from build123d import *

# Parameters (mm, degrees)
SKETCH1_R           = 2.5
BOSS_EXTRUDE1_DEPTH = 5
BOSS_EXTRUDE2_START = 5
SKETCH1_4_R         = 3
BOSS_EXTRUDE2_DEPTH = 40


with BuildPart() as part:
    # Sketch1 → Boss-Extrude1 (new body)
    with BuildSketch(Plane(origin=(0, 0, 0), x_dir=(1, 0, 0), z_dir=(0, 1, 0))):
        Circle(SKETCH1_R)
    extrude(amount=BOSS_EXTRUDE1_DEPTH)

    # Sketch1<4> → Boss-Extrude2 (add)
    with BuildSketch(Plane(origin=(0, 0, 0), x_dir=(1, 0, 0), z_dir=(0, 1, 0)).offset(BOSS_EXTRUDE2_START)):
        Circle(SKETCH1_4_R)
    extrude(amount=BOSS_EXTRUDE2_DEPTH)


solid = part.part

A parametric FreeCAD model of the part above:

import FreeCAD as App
import Part
import Sketcher
Q = App.Units.Quantity

doc = App.newDocument("Part")
body = doc.addObject("PartDesign::Body", "Body")

# Sketch on XZ plane
sketch1 = doc.addObject("Sketcher::SketchObject", "Sketch")
body.addObject(sketch1)
sketch1.AttachmentSupport = (doc.XZ_Plane, [""])
sketch1.MapMode = "FlatFace"
sketch1.addGeometry(Part.Circle(App.Vector(0, 0, 0), App.Vector(0, 0, 1), 2.5), False)
sketch1.addConstraint([
    Sketcher.Constraint("Coincident", 0, 3, -1, 1),
    Sketcher.Constraint("Diameter", 0, Q("5 mm")),
])
pad1 = doc.addObject("PartDesign::Pad", "Pad")
body.addObject(pad1)
pad1.Profile = sketch1
pad1.Length = 5
pad1.Reversed = True

# Sketch on XZ plane
sketch2 = doc.addObject("Sketcher::SketchObject", "Sketch001")
body.addObject(sketch2)
sketch2.AttachmentSupport = (doc.XZ_Plane, [""])
sketch2.MapMode = "FlatFace"
sketch2.AttachmentOffset = App.Placement(App.Vector(0, 0, -5), App.Rotation())
sketch2.addGeometry(Part.Circle(App.Vector(0, 0, 0), App.Vector(0, 0, 1), 3), False)
sketch2.addConstraint([
    Sketcher.Constraint("Coincident", 0, 3, -1, 1),
    Sketcher.Constraint("Diameter", 0, Q("6 mm")),
])
pad2 = doc.addObject("PartDesign::Pad", "Pad001")
body.addObject(pad2)
pad2.Profile = sketch2
pad2.Length = 40
pad2.Reversed = True

doc.recompute()
